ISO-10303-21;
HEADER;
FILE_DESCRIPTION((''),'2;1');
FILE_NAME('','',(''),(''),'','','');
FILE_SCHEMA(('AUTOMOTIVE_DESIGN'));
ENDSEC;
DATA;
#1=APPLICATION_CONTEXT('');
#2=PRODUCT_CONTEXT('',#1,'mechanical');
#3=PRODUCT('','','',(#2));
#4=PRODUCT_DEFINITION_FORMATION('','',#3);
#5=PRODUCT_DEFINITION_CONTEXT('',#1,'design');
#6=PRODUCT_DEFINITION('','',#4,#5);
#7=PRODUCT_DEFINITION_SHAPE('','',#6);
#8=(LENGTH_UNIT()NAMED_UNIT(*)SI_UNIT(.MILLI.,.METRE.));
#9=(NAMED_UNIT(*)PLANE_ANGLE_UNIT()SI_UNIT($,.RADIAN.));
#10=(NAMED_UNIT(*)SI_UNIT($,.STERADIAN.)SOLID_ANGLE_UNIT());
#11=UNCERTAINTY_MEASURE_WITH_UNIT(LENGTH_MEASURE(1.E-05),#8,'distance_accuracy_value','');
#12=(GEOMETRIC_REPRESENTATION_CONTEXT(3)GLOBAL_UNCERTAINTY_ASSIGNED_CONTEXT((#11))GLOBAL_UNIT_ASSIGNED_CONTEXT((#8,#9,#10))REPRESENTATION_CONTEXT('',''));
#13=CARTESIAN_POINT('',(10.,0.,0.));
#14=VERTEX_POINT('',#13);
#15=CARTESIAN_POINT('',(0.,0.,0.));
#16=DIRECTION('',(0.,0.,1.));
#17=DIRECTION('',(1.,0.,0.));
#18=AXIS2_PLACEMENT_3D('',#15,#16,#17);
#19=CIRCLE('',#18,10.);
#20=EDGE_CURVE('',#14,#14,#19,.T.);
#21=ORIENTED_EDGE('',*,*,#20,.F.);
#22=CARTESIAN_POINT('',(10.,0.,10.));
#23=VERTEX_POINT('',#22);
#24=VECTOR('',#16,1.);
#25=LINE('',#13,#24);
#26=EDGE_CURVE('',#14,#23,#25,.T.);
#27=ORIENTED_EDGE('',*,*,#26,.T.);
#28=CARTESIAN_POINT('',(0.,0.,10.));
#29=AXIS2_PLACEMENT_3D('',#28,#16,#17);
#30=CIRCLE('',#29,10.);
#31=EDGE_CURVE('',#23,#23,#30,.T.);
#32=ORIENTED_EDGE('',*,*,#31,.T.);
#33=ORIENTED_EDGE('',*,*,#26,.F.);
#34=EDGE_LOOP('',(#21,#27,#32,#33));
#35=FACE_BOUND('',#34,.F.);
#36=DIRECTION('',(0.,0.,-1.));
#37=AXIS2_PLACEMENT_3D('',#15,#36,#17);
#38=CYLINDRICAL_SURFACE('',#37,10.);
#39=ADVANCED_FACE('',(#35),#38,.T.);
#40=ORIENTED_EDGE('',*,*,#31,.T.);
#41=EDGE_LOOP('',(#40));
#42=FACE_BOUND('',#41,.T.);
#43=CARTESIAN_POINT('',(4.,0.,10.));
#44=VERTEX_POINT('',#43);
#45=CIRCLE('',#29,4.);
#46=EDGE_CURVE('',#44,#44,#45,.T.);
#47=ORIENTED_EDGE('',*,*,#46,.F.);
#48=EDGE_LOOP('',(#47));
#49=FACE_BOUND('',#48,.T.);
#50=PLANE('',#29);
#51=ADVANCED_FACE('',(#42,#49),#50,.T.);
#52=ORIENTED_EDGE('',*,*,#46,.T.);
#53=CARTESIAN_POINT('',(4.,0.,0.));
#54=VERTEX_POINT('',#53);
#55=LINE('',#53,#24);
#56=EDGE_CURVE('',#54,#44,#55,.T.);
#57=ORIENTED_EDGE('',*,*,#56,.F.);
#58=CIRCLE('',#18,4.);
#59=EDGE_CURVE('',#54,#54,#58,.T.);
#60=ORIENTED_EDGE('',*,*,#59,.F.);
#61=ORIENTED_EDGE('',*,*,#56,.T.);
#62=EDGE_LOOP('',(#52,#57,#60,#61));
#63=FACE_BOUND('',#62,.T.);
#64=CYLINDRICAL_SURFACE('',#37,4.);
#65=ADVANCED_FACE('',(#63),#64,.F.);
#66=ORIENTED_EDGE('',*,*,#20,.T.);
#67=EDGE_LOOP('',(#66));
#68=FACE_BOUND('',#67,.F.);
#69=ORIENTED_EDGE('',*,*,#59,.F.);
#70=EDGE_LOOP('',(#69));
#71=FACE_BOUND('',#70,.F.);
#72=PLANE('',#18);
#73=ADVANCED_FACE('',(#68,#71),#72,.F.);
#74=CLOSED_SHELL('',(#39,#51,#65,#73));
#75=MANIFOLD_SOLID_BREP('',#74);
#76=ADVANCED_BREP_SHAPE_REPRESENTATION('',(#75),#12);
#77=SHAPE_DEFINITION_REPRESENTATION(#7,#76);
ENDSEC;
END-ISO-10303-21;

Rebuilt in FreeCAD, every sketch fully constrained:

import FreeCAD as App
import Part
import Sketcher
from FreeCAD import Vector
Q = App.Units.Quantity

doc = App.newDocument("Part")
params = doc.addObject("Spreadsheet::Sheet", "Params")
for row, (alias, value) in enumerate([
    ("sketch1_diameter", "20 mm"),
    ("sketch1_diameter2", "8 mm"),
    ("pad1_length", "10 mm"),
], start=1):
    params.set(f"A{row}", alias)
    params.set(f"B{row}", "=" + value)
    params.setAlias(f"B{row}", alias)

body = doc.addObject("PartDesign::Body", "Body")

# Sketch on XY plane
sketch1 = doc.addObject("Sketcher::SketchObject", "Sketch")
body.addObject(sketch1)
sketch1.AttachmentSupport = (doc.XY_Plane, [""])
sketch1.MapMode = "FlatFace"
sketch1.addGeometry(Part.Circle(Vector(0, 0, 0), Vector(0, 0, 1), 10), False)
sketch1.addGeometry(Part.Circle(Vector(0, 0, 0), Vector(0, 0, 1), 4), False)
sketch1.addConstraint(Sketcher.Constraint("Coincident", 0, 3, -1, 1))
sketch1.addConstraint(Sketcher.Constraint("Coincident", 1, 3, -1, 1))
sketch1.addConstraint(Sketcher.Constraint("Diameter", 0, Q("20 mm")))
sketch1.addConstraint(Sketcher.Constraint("Diameter", 1, Q("8 mm")))
sketch1.setExpression("Constraints[2]", "Params.sketch1_diameter")
sketch1.setExpression("Constraints[3]", "Params.sketch1_diameter2")
pad1 = doc.addObject("PartDesign::Pad", "Pad")
body.addObject(pad1)
pad1.Profile = sketch1
pad1.setExpression("Length", "Params.pad1_length")

doc.recompute()
